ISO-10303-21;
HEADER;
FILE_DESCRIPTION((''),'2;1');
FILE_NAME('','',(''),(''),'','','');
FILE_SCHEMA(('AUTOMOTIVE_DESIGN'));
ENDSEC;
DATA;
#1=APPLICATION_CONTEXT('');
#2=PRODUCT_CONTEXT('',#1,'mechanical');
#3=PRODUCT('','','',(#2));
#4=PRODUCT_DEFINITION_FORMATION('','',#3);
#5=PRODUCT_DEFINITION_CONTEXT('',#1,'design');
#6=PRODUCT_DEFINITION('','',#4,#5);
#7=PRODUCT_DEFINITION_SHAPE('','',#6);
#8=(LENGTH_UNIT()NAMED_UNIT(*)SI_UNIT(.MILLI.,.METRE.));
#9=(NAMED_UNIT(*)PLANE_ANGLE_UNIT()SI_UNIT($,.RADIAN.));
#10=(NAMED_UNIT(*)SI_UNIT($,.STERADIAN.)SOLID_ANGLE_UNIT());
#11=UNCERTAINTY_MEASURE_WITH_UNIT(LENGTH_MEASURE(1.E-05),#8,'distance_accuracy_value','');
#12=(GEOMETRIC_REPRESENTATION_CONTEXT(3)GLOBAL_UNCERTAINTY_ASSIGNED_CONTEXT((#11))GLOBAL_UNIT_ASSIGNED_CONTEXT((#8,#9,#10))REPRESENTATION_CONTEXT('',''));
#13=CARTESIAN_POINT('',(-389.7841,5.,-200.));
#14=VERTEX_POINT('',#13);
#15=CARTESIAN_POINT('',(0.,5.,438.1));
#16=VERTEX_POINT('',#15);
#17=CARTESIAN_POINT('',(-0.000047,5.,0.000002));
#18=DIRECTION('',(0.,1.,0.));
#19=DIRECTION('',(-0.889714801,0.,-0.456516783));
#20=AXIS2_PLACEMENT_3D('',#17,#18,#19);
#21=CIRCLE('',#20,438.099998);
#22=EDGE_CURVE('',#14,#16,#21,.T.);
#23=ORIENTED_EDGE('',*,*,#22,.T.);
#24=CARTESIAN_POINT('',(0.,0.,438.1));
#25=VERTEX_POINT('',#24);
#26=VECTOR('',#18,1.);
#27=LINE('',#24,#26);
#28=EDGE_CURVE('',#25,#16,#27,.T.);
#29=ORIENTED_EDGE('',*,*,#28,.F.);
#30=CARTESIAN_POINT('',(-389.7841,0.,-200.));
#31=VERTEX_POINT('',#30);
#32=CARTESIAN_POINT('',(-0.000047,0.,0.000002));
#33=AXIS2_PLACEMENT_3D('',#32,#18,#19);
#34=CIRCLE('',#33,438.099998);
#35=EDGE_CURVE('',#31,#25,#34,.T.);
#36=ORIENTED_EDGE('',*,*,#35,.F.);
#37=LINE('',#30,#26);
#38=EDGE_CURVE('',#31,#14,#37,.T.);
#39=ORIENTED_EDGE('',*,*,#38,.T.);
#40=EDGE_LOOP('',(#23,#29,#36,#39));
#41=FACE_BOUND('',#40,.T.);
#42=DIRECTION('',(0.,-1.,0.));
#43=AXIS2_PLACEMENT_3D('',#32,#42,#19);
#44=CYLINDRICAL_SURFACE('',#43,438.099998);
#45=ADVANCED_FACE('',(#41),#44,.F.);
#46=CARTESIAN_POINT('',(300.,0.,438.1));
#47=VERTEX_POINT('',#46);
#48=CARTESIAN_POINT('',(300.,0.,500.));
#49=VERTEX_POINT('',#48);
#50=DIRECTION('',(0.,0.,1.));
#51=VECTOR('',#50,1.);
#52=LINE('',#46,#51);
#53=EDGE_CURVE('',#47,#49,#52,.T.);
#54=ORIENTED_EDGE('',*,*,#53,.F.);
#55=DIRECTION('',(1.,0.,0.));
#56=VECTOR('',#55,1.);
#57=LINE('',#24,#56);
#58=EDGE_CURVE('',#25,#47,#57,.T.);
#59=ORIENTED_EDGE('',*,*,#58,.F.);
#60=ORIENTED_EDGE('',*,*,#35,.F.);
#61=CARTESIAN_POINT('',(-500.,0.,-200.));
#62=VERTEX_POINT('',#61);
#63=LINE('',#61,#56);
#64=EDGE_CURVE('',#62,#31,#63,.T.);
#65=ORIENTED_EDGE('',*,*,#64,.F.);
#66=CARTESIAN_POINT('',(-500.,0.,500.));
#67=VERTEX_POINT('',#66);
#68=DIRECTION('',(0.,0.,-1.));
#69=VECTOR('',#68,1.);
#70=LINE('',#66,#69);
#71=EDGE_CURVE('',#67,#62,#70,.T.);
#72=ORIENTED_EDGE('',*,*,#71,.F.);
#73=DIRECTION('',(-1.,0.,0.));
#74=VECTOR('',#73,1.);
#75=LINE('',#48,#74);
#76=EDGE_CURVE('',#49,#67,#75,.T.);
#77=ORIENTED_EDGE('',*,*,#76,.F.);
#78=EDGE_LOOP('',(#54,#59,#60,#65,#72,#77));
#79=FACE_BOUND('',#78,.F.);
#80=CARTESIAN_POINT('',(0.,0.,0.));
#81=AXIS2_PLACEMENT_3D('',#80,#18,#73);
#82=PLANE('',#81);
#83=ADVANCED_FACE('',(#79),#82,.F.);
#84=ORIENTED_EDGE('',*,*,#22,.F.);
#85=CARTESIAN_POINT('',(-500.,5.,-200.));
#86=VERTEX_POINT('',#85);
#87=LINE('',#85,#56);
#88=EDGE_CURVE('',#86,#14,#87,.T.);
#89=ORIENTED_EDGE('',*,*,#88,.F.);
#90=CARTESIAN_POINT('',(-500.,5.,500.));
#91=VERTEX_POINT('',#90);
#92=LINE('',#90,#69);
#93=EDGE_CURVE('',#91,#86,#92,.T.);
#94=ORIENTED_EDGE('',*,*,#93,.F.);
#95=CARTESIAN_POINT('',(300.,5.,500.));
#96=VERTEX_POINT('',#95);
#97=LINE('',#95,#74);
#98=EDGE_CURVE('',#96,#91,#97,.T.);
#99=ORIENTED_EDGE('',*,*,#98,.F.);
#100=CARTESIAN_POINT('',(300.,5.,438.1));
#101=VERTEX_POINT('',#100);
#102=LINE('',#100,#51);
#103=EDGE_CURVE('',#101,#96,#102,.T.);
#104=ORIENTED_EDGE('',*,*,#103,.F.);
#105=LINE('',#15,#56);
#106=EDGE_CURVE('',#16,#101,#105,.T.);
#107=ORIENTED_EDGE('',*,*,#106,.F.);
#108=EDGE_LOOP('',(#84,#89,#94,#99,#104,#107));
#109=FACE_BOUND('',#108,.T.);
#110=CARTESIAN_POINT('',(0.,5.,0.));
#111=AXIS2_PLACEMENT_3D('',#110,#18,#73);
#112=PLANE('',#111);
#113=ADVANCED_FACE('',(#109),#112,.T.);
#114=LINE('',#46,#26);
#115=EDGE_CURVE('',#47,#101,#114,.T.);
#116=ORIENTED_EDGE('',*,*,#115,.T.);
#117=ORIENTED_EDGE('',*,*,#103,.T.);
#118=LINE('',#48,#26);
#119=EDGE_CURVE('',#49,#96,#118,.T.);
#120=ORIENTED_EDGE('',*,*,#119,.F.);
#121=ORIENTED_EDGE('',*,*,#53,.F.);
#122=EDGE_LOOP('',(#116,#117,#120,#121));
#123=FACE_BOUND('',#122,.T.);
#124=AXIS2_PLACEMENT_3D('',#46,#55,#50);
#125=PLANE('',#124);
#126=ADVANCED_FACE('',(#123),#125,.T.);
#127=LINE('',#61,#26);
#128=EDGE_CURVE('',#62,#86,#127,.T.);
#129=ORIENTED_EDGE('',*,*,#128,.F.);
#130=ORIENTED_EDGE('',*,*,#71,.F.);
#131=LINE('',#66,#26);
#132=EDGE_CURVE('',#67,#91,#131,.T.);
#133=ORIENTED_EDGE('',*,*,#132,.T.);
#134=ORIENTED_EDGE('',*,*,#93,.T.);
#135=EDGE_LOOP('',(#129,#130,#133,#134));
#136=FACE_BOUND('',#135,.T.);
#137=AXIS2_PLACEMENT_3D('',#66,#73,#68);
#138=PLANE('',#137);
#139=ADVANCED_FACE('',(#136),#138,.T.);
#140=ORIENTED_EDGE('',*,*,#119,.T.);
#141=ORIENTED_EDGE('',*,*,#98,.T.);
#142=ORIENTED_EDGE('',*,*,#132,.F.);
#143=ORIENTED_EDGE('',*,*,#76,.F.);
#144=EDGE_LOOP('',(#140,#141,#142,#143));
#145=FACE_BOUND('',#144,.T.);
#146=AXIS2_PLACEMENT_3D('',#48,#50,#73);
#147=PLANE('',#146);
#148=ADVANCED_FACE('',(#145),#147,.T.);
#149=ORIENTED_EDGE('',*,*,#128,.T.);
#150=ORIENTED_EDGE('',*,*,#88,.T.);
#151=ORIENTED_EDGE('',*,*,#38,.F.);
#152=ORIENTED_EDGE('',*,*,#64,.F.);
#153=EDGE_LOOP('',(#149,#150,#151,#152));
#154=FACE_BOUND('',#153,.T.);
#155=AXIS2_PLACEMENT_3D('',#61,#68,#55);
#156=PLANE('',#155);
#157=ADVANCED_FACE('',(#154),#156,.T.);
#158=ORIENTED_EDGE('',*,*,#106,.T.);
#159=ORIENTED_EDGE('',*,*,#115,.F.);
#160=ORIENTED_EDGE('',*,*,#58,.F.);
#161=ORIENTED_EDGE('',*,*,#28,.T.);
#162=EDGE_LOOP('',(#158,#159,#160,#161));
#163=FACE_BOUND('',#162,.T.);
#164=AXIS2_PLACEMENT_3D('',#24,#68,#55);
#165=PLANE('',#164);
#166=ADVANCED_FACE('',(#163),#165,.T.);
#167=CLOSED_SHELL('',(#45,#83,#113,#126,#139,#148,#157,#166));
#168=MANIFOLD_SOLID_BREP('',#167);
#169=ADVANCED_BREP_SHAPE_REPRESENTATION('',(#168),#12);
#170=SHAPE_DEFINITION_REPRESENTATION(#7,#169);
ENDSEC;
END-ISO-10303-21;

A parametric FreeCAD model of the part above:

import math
import FreeCAD as App
import Part
import Sketcher
from FreeCAD import Vector
Q = App.Units.Quantity

doc = App.newDocument("Part")
body = doc.addObject("PartDesign::Body", "Body")

# Sketch on XZ plane
sketch1 = doc.addObject("Sketcher::SketchObject", "Sketch")
body.addObject(sketch1)
sketch1.AttachmentSupport = (doc.XZ_Plane, [""])
sketch1.MapMode = "FlatFace"
sketch1.addGeometry([
    Part.ArcOfCircle(Part.Circle(Vector(0, 0, 0), Vector(0, 0, 1), 438), math.radians(90), math.radians(207)),  # 0
    Part.LineSegment(Vector(-390, -200, 0), Vector(-500, -200, 0)),  # 1
    Part.LineSegment(Vector(-500, -200, 0), Vector(-500, 500, 0)),  # 2
    Part.LineSegment(Vector(-500, 500, 0), Vector(300, 500, 0)),  # 3
    Part.LineSegment(Vector(300, 500, 0), Vector(300, 438, 0)),  # 4
    Part.LineSegment(Vector(300, 438, 0), Vector(0, 438, 0)),  # 5
], False)
sketch1.addConstraint([
    Sketcher.Constraint("Coincident", 0, 2, 1, 1),
    Sketcher.Constraint("Coincident", 1, 2, 2, 1),
    Sketcher.Constraint("Coincident", 2, 2, 3, 1),
    Sketcher.Constraint("Coincident", 3, 2, 4, 1),
    Sketcher.Constraint("Coincident", 4, 2, 5, 1),
    Sketcher.Constraint("Tangent", 5, 2, 0, 1),
    Sketcher.Constraint("Horizontal", 1),
    Sketcher.Constraint("Vertical", 2),
    Sketcher.Constraint("Horizontal", 3),
    Sketcher.Constraint("Vertical", 4),
    Sketcher.Constraint("Horizontal", 5),
    Sketcher.Constraint("Coincident", 0, 3, -1, 1),
    Sketcher.Constraint("Radius", 0, Q("438.1 mm")),
    Sketcher.Constraint("DistanceX", 5, 2, 5, 1, Q("300 mm")),
    Sketcher.Constraint("DistanceY", 2, 1, 2, 2, Q("700 mm")),
    Sketcher.Constraint("DistanceX", 1, 2, -1, 1, Q("500 mm")),
    Sketcher.Constraint("DistanceY", -1, 1, 2, 2, Q("500 mm")),
])
pad1 = doc.addObject("PartDesign::Pad", "Pad")
body.addObject(pad1)
pad1.Profile = sketch1
pad1.Length = 5
pad1.Reversed = True

doc.recompute()
